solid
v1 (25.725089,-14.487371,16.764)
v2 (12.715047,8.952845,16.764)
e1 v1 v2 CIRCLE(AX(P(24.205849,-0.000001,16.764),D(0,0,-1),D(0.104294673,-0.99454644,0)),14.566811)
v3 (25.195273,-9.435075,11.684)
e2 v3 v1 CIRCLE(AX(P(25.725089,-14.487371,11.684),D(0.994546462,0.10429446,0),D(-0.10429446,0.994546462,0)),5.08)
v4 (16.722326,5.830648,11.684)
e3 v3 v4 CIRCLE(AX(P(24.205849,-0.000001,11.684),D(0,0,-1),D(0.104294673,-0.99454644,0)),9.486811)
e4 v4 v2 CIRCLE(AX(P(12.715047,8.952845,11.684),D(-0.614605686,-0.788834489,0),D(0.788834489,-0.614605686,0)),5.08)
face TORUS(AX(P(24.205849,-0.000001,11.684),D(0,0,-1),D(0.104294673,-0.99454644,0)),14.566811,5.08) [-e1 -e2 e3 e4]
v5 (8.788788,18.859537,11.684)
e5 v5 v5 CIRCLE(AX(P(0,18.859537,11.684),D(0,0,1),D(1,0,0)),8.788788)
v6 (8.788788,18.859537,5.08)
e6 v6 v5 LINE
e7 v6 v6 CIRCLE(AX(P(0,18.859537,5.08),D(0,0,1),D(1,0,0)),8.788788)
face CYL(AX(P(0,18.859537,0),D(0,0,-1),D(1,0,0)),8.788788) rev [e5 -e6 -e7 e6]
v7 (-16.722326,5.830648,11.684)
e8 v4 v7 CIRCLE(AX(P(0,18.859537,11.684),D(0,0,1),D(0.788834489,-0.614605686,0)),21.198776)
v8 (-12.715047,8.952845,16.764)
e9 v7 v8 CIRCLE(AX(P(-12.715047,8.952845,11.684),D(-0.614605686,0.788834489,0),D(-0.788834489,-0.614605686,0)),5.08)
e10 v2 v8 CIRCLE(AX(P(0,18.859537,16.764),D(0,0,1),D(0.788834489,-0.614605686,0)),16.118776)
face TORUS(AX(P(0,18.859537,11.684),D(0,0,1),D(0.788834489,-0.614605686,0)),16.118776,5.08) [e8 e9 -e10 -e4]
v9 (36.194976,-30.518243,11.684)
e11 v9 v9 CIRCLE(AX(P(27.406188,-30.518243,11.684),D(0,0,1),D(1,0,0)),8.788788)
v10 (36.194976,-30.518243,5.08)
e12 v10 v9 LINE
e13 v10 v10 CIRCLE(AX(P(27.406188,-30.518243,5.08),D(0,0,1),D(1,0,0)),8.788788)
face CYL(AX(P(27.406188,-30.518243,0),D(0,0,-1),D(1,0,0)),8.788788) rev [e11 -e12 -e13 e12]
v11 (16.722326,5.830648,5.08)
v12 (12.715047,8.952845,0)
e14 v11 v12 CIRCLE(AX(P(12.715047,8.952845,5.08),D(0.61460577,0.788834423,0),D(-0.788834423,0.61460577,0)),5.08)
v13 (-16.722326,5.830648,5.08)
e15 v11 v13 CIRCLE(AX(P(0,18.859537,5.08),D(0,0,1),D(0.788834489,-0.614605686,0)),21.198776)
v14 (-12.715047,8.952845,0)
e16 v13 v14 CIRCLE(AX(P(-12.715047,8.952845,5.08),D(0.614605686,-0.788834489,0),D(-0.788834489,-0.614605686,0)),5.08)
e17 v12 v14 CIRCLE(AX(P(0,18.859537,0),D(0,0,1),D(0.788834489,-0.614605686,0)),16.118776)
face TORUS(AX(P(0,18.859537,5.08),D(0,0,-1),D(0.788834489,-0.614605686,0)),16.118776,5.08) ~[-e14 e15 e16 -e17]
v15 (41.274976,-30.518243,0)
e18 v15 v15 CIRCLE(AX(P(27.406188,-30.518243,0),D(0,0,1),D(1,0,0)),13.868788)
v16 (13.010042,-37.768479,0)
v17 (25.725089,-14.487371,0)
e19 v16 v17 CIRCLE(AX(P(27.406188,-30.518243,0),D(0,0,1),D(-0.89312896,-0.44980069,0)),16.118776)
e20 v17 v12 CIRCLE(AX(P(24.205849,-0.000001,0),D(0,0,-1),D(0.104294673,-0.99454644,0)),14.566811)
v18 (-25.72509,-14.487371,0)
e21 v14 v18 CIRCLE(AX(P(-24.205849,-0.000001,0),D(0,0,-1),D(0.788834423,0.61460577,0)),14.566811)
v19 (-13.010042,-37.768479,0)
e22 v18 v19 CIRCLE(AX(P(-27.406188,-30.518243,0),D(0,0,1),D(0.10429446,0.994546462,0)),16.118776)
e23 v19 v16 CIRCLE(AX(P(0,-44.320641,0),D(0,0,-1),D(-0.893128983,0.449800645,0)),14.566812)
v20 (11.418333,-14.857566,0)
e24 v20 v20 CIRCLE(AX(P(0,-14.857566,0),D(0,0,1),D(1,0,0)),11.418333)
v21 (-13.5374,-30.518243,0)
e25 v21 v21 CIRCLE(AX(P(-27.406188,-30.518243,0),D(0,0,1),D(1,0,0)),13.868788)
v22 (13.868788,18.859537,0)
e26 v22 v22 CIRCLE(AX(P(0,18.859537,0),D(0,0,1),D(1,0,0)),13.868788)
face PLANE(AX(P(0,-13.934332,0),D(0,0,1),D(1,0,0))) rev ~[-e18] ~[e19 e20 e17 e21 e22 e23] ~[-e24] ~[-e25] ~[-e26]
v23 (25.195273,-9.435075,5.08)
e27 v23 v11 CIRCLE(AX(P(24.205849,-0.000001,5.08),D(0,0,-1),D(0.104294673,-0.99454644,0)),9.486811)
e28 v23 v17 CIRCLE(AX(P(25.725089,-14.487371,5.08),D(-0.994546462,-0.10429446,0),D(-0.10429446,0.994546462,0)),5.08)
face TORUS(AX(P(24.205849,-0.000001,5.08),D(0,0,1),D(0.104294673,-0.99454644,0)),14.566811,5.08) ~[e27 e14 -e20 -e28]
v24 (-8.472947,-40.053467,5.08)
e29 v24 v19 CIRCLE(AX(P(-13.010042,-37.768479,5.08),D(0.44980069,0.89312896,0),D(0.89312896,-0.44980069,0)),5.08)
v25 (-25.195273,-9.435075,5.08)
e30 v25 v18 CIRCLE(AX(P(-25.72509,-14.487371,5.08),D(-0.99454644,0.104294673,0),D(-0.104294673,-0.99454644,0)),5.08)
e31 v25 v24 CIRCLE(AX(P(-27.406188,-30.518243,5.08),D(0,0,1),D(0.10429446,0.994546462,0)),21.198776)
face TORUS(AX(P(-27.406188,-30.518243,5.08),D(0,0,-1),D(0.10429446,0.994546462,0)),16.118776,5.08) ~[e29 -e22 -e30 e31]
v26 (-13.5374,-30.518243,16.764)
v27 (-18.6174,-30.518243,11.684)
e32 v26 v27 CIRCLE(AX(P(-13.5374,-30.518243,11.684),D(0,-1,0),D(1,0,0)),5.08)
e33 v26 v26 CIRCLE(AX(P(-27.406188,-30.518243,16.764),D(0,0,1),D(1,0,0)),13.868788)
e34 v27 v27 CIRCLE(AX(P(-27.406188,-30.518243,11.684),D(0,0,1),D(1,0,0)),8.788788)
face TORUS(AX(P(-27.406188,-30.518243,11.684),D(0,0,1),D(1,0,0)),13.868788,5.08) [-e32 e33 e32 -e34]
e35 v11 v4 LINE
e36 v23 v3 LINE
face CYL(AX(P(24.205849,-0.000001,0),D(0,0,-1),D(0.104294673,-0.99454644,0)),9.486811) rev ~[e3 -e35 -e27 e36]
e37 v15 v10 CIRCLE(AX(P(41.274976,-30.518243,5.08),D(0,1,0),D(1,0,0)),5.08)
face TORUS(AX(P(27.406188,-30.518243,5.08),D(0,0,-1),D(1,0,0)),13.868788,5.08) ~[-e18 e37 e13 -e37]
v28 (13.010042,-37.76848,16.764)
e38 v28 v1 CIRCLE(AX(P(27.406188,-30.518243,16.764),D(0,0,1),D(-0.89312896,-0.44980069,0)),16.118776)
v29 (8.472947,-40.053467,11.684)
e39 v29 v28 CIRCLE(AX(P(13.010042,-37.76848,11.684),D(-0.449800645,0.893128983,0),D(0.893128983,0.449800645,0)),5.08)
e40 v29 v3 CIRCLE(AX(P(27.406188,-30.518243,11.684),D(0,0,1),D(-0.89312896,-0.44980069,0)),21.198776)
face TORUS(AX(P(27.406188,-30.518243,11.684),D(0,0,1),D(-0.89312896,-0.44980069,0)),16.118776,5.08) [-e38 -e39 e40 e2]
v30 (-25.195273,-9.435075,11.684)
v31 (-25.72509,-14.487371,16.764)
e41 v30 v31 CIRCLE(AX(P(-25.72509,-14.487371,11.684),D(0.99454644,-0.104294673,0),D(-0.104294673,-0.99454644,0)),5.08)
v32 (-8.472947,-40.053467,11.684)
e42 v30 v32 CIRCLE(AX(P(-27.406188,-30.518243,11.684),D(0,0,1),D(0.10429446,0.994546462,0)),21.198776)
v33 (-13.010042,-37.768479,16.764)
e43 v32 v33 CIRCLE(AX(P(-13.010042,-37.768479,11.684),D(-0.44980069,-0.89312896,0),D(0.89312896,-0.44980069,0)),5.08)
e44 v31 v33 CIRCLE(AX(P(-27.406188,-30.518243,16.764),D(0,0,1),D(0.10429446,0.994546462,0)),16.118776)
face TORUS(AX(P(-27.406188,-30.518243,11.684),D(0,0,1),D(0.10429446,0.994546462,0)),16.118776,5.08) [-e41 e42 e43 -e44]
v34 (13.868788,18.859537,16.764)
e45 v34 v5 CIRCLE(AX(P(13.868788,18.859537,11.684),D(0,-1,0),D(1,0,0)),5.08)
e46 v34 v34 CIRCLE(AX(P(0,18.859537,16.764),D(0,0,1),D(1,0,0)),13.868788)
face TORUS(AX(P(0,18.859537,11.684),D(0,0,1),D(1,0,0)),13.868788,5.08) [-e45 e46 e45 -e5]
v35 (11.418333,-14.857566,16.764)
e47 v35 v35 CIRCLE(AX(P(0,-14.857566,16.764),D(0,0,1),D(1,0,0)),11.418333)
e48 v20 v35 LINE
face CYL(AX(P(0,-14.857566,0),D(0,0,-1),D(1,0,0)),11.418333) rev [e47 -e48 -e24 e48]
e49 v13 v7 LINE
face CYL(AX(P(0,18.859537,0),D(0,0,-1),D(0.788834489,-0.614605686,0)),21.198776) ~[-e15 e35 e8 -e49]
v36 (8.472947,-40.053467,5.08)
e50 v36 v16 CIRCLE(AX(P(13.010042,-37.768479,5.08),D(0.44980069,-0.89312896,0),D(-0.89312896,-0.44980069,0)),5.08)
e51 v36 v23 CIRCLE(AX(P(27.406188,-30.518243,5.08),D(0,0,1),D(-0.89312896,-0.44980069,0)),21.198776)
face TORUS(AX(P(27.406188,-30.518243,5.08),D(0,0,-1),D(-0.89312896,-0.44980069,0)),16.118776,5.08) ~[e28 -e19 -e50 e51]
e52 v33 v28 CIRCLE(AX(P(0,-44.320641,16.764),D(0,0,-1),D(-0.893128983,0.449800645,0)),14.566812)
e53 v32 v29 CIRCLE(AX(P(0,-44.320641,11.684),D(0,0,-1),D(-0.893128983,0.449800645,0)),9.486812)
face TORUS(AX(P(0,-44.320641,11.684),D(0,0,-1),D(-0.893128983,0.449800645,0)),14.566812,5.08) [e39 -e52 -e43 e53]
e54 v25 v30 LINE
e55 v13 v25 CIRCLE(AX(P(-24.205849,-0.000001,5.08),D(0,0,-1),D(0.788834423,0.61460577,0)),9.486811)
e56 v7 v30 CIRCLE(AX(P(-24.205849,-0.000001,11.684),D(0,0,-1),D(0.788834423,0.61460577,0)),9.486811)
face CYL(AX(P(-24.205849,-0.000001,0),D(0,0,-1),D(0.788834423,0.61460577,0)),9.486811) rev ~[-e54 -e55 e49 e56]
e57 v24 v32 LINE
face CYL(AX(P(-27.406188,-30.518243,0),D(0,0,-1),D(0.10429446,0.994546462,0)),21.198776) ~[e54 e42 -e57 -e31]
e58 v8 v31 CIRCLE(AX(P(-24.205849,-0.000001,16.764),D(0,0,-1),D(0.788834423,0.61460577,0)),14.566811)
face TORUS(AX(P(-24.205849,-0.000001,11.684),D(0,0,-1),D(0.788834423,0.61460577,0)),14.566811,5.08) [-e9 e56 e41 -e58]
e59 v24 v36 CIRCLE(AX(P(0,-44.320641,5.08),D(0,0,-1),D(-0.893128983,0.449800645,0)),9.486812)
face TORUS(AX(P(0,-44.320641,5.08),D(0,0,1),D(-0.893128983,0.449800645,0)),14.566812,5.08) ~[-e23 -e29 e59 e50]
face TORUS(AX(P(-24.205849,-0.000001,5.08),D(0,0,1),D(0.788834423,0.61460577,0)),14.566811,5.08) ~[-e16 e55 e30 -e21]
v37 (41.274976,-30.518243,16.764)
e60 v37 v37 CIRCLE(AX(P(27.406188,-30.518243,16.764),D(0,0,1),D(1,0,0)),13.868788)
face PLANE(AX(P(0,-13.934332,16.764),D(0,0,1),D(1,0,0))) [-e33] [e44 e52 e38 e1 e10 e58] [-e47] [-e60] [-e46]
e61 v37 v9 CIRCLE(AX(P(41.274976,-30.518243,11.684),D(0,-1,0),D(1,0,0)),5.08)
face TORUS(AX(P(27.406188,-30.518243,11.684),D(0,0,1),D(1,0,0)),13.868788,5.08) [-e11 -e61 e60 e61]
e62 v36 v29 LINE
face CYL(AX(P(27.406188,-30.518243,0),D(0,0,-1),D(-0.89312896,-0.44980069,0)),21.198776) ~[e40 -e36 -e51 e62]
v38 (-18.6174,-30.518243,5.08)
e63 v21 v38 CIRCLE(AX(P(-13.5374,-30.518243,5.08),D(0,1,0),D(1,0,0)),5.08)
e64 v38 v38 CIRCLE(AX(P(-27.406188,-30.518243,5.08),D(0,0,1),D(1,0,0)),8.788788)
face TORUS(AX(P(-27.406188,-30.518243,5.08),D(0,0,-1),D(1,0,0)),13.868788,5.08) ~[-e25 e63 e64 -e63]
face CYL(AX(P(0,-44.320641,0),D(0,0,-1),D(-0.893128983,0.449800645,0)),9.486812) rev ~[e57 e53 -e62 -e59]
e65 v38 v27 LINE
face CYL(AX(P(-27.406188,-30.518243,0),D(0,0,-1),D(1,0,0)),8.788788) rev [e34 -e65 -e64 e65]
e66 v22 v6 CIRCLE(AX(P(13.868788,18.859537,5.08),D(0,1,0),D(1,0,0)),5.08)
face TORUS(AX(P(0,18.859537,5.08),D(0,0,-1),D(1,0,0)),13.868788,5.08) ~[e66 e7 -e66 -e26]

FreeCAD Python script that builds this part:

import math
import FreeCAD as App
import Part
import Sketcher

V = App.Vector
Q = App.Units.Quantity


def edges_at(feature, points):
    """Names of the edges that pass closest to the given points."""
    edges = feature.Shape.Edges
    near = lambda p: min(range(len(edges)), key=lambda i: edges[i].distToShape(Part.Vertex(*p))[0])
    return sorted({f"Edge{near(p) + 1}" for p in points})

doc = App.newDocument("Part")
body = doc.addObject("PartDesign::Body", "Body")

# Sketch on XY plane
sketch1 = body.newObject("Sketcher::SketchObject", "Sketch")
sketch1.AttachmentSupport = (doc.getObject("XY_Plane"), [""])
sketch1.MapMode = "FlatFace"
sketch1.addGeometry([
    Part.ArcOfCircle(Part.Circle(V(24.205849, -0.000001, 0), V(0, 0, 1), 9.486811), math.radians(142.07672), math.radians(275.986531)),  # 0
    Part.ArcOfCircle(Part.Circle(V(0, 18.859537, 0), V(0, 0, 1), 21.198776), math.radians(-37.923274), math.radians(217.923274)),  # 1
    Part.ArcOfCircle(Part.Circle(V(-24.205849, -0.000001, 0), V(0, 0, 1), 9.486811), math.radians(-95.986531), math.radians(37.92328)),  # 2
    Part.ArcOfCircle(Part.Circle(V(-27.406188, -30.518243, 0), V(0, 0, 1), 21.198776), math.radians(84.013481), math.radians(333.269103)),  # 3
    Part.ArcOfCircle(Part.Circle(V(0, -44.320641, 0), V(0, 0, 1), 9.486812), math.radians(26.730894), math.radians(153.269106)),  # 4
    Part.ArcOfCircle(Part.Circle(V(27.406188, -30.518243, 0), V(0, 0, 1), 21.198776), math.radians(-153.269103), math.radians(95.986519)),  # 5
    Part.Circle(V(-27.406188, -30.518243, 0), V(0, 0, 1), 8.788788),  # 6
    Part.Circle(V(27.406188, -30.518243, 0), V(0, 0, 1), 8.788788),  # 7
    Part.Circle(V(0, -14.857566, 0), V(0, 0, 1), 11.418333),  # 8
    Part.Circle(V(0, 18.859537, 0), V(0, 0, 1), 8.788788),  # 9
], False)
sketch1.addConstraint([
    Sketcher.Constraint("Tangent", 0, 1, 1, 1),
    Sketcher.Constraint("Tangent", 1, 2, 2, 2),
    Sketcher.Constraint("Tangent", 2, 1, 3, 1),
    Sketcher.Constraint("Tangent", 3, 2, 4, 2),
    Sketcher.Constraint("Tangent", 4, 1, 5, 1),
    Sketcher.Constraint("Tangent", 5, 2, 0, 2),
    Sketcher.Constraint("Coincident", 6, 3, 3, 3),
    Sketcher.Constraint("Coincident", 7, 3, 5, 3),
    Sketcher.Constraint("Coincident", 9, 3, 1, 3),
    Sketcher.Constraint("Equal", 0, 2),
    Sketcher.Constraint("Equal", 1, 3),
    Sketcher.Constraint("Equal", 2, 4),
    Sketcher.Constraint("Equal", 3, 5),
    Sketcher.Constraint("Equal", 6, 7),
    Sketcher.Constraint("Equal", 7, 9),
    Sketcher.Constraint("Symmetric", 0, 3, 2, 3, -1, 1),
    Sketcher.Constraint("Symmetric", 3, 3, 5, 3, -2),
    Sketcher.Constraint("PointOnObject", 8, 3, -2),
    Sketcher.Constraint("Radius", 0, Q("9.486811 mm")),
    Sketcher.Constraint("Diameter", 6, Q("17.577576 mm")),
    Sketcher.Constraint("Diameter", 8, Q("22.836666 mm")),
    Sketcher.Constraint("Radius", 1, Q("21.198776 mm")),
    Sketcher.Constraint("DistanceX", 2, 3, 0, 3, Q("48.411698 mm")),
    Sketcher.Constraint("DistanceY", 4, 3, 3, 3, Q("13.802398 mm")),
    Sketcher.Constraint("DistanceY", 3, 2, 8, 3, Q("25.195901 mm")),
])
pad1 = body.newObject("PartDesign::Pad", "Pad")
pad1.Profile = sketch1
pad1.Length = Q("0.66 in")
doc.recompute()

fillet = body.newObject("PartDesign::Fillet", "Fillet")
fillet.Base = (pad1, edges_at(pad1, [(0, 40.058, 16.764), (46.011, -40.679, 0)]))
fillet.Radius = Q("0.2 in")
doc.recompute()

fillet2 = body.newObject("PartDesign::Fillet", "Fillet001")
fillet2.Base = (fillet, edges_at(fillet, [
    (-36.195, -30.518, 0),
    (18.617, -30.518, 0),
    (-8.789, 18.86, 0),
    (-36.195, -30.518, 16.764),
    (-8.789, 18.86, 16.764),
    (18.617, -30.518, 16.764),
]))
fillet2.Radius = Q("0.2 in")

doc.recompute()
